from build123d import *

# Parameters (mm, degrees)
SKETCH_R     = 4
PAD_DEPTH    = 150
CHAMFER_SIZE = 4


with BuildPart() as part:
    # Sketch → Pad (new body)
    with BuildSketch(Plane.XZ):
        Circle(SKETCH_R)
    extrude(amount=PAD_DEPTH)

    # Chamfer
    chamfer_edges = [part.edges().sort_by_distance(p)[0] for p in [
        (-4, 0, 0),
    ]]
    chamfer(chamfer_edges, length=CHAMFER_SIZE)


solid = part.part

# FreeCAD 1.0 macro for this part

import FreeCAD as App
import Part
import Sketcher
from FreeCAD import Vector
Q = App.Units.Quantity


def edges_at(feature, points):
    """Names of the edges that pass closest to the given points."""
    edges = feature.Shape.Edges
    near = lambda p: min(range(len(edges)), key=lambda i: edges[i].distToShape(Part.Vertex(*p))[0])
    return sorted({f"Edge{near(p) + 1}" for p in points})

doc = App.newDocument("Part")
body = doc.addObject("PartDesign::Body", "Body")

# Sketch on XZ plane
sketch1 = body.newObject("Sketcher::SketchObject", "Sketch")
sketch1.AttachmentSupport = (doc.getObject("XZ_Plane"), [""])
sketch1.MapMode = "FlatFace"
sketch1.addGeometry(Part.Circle(Vector(0, 0, 0), Vector(0, 0, 1), 4), False)
sketch1.addConstraint(Sketcher.Constraint("Coincident", 0, 3, -1, 1))
sketch1.addConstraint(Sketcher.Constraint("Diameter", 0, Q("8 mm")))
pad1 = body.newObject("PartDesign::Pad", "Pad")
pad1.Profile = sketch1
pad1.Length = 150
doc.recompute()

chamfer = body.newObject("PartDesign::Chamfer", "Chamfer")
chamfer.Base = (pad1, edges_at(pad1, [(-4, 0, 0)]))
chamfer.Size = 4

doc.recompute()
